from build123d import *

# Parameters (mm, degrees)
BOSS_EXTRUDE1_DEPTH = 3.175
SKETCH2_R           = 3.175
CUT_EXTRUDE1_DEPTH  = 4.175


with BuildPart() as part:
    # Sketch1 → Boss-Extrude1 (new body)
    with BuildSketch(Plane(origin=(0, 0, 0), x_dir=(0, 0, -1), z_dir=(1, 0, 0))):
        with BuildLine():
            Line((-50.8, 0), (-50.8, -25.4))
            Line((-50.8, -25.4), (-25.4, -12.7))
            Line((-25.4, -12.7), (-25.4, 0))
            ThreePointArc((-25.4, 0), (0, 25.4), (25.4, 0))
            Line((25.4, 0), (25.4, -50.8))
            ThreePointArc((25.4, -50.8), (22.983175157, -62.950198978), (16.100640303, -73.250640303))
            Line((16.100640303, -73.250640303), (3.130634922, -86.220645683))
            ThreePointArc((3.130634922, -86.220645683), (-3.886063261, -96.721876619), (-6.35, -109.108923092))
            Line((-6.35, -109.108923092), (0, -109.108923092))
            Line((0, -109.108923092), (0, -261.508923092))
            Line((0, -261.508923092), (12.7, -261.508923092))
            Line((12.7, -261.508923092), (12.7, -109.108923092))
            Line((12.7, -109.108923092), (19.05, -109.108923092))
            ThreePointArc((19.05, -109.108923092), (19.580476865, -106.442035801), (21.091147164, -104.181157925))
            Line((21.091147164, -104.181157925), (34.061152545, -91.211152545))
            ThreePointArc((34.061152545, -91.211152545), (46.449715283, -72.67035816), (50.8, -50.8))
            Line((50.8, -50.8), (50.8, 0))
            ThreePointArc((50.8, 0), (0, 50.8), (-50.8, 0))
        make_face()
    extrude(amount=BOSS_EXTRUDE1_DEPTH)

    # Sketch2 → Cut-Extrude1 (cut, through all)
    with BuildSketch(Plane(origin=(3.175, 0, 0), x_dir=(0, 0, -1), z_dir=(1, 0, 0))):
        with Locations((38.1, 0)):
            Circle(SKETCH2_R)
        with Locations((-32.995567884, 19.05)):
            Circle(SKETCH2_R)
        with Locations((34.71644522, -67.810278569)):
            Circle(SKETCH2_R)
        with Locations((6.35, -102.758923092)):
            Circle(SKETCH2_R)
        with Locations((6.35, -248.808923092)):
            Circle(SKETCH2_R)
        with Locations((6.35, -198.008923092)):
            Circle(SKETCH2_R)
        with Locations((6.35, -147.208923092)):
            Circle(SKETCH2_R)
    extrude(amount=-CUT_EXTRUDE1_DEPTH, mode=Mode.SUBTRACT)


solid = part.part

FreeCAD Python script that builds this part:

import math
import FreeCAD as App
import Part
import Sketcher
from FreeCAD import Vector
Q = App.Units.Quantity

doc = App.newDocument("Part")
params = doc.addObject("Spreadsheet::Sheet", "Params")
for row, (alias, value) in enumerate([
    ("sketch1_radius", "1 in"),
    ("sketch1_radius2", "2 in"),
    ("sketch1_width", "1 in"),
    ("sketch1_width2", "2 in"),
    ("sketch1_width3", "6 in"),
    ("pad1_length", "0.125 in"),
    ("sketch2_diameter", "0.25 in"),
], start=1):
    params.set(f"A{row}", alias)
    params.set(f"B{row}", "=" + value)
    params.setAlias(f"B{row}", alias)

body = doc.addObject("PartDesign::Body", "Body")

# Sketch on YZ plane
sketch1 = body.newObject("Sketcher::SketchObject", "Sketch")
sketch1.AttachmentSupport = (doc.getObject("YZ_Plane"), [""])
sketch1.MapMode = "FlatFace"
sketch1.addGeometry(Part.LineSegment(Vector(0, 51, 0), Vector(-25, 51, 0)), False)
sketch1.addGeometry(Part.LineSegment(Vector(-25, 51, 0), Vector(-13, 25, 0)), False)
sketch1.addGeometry(Part.LineSegment(Vector(-13, 25, 0), Vector(0, 25, 0)), False)
sketch1.addGeometry(Part.ArcOfCircle(Part.Circle(Vector(0, 0, 0), Vector(0, 0, 1), 25), math.radians(-90), math.radians(90)), False)
sketch1.addGeometry(Part.LineSegment(Vector(0, -25, 0), Vector(-51, -25, 0)), False)
sketch1.addGeometry(Part.ArcOfCircle(Part.Circle(Vector(-51, 6, 0), Vector(0, 0, 1), 32), math.radians(-135), math.radians(-90)), False)
sketch1.addGeometry(Part.LineSegment(Vector(-73, -16, 0), Vector(-86, -3, 0)), False)
sketch1.addGeometry(Part.ArcOfCircle(Part.Circle(Vector(-109, -26, 0), Vector(0, 0, 1), 32), math.radians(45), math.radians(90)), False)
sketch1.addGeometry(Part.LineSegment(Vector(-109, 6, 0), Vector(-109, 0, 0)), False)
sketch1.addGeometry(Part.LineSegment(Vector(-109, 0, 0), Vector(-262, 0, 0)), False)
sketch1.addGeometry(Part.LineSegment(Vector(-262, 0, 0), Vector(-262, -13, 0)), False)
sketch1.addGeometry(Part.LineSegment(Vector(-262, -13, 0), Vector(-109, -13, 0)), False)
sketch1.addGeometry(Part.LineSegment(Vector(-109, -13, 0), Vector(-109, -19, 0)), False)
sketch1.addGeometry(Part.ArcOfCircle(Part.Circle(Vector(-109, -26, 0), Vector(0, 0, 1), 7), math.radians(45), math.radians(90)), False)
sketch1.addGeometry(Part.LineSegment(Vector(-104, -21, 0), Vector(-91, -34, 0)), False)
sketch1.addGeometry(Part.ArcOfCircle(Part.Circle(Vector(-51, 6, 0), Vector(0, 0, 1), 57), math.radians(-135), math.radians(-90)), False)
sketch1.addGeometry(Part.LineSegment(Vector(-51, -51, 0), Vector(0, -51, 0)), False)
sketch1.addGeometry(Part.ArcOfCircle(Part.Circle(Vector(0, 0, 0), Vector(0, 0, 1), 51), math.radians(-90), math.radians(90)), False)
sketch1.addConstraint(Sketcher.Constraint("Coincident", 0, 2, 1, 1))
sketch1.addConstraint(Sketcher.Constraint("Coincident", 1, 2, 2, 1))
sketch1.addConstraint(Sketcher.Constraint("Tangent", 2, 2, 3, 2))
sketch1.addConstraint(Sketcher.Constraint("Tangent", 3, 1, 4, 1))
sketch1.addConstraint(Sketcher.Constraint("Tangent", 4, 2, 5, 2))
sketch1.addConstraint(Sketcher.Constraint("Tangent", 5, 1, 6, 1))
sketch1.addConstraint(Sketcher.Constraint("Tangent", 6, 2, 7, 1))
sketch1.addConstraint(Sketcher.Constraint("Coincident", 7, 2, 8, 1))
sketch1.addConstraint(Sketcher.Constraint("Coincident", 8, 2, 9, 1))
sketch1.addConstraint(Sketcher.Constraint("Coincident", 9, 2, 10, 1))
sketch1.addConstraint(Sketcher.Constraint("Coincident", 10, 2, 11, 1))
sketch1.addConstraint(Sketcher.Constraint("Coincident", 11, 2, 12, 1))
sketch1.addConstraint(Sketcher.Constraint("Coincident", 12, 2, 13, 2))
sketch1.addConstraint(Sketcher.Constraint("Tangent", 13, 1, 14, 1))
sketch1.addConstraint(Sketcher.Constraint("Tangent", 14, 2, 15, 1))
sketch1.addConstraint(Sketcher.Constraint("Tangent", 15, 2, 16, 1))
sketch1.addConstraint(Sketcher.Constraint("Tangent", 16, 2, 17, 1))
sketch1.addConstraint(Sketcher.Constraint("Tangent", 17, 2, 0, 1))
sketch1.addConstraint(Sketcher.Constraint("Horizontal", 0))
sketch1.addConstraint(Sketcher.Constraint("Horizontal", 2))
sketch1.addConstraint(Sketcher.Constraint("Horizontal", 4))
sketch1.addConstraint(Sketcher.Constraint("Vertical", 8))
sketch1.addConstraint(Sketcher.Constraint("Horizontal", 9))
sketch1.addConstraint(Sketcher.Constraint("Vertical", 10))
sketch1.addConstraint(Sketcher.Constraint("Horizontal", 11))
sketch1.addConstraint(Sketcher.Constraint("Vertical", 12))
sketch1.addConstraint(Sketcher.Constraint("Horizontal", 16))
sketch1.addConstraint(Sketcher.Constraint("Coincident", 3, 3, -1, 1))
sketch1.addConstraint(Sketcher.Constraint("Coincident", 17, 3, -1, 1))
sketch1.addConstraint(Sketcher.Constraint("Coincident", 13, 3, 7, 3))
sketch1.addConstraint(Sketcher.Constraint("Coincident", 15, 3, 5, 3))
sketch1.addConstraint(Sketcher.Constraint("PointOnObject", 8, 2, -1))
sketch1.addConstraint(Sketcher.Constraint("Parallel", 6, 14))
sketch1.addConstraint(Sketcher.Constraint("Horizontal", 15, 3, 7, 2))
sketch1.addConstraint(Sketcher.Constraint("Vertical", 13, 3, 7, 2))
sketch1.addConstraint(Sketcher.Constraint("Vertical", 8, 2, 11, 2))
sketch1.addConstraint(Sketcher.Constraint("Equal", 2, 10))
sketch1.addConstraint(Sketcher.Constraint("Equal", 8, 12))
sketch1.addConstraint(Sketcher.Constraint("Radius", 3, Q("1 in")))
sketch1.addConstraint(Sketcher.Constraint("Radius", 17, Q("2 in")))
sketch1.addConstraint(Sketcher.Constraint("DistanceX", 0, 2, 0, 1, Q("1 in")))
sketch1.addConstraint(Sketcher.Constraint("DistanceX", 4, 2, 4, 1, Q("2 in")))
sketch1.addConstraint(Sketcher.Constraint("DistanceX", 9, 2, 9, 1, Q("6 in")))
sketch1.addConstraint(Sketcher.Constraint("Radius", 5, Q("1.25 in")))
sketch1.addConstraint(Sketcher.Constraint("Angle", 6, Q("135 deg")))
sketch1.addConstraint(Sketcher.Constraint("Radius", 7, Q("32.368912 mm")))
sketch1.setExpression("Constraints[38]", "Params.sketch1_radius")
sketch1.setExpression("Constraints[39]", "Params.sketch1_radius2")
sketch1.setExpression("Constraints[40]", "Params.sketch1_width")
sketch1.setExpression("Constraints[41]", "Params.sketch1_width2")
sketch1.setExpression("Constraints[42]", "Params.sketch1_width3")
pad1 = body.newObject("PartDesign::Pad", "Pad")
pad1.Profile = sketch1
pad1.setExpression("Length", "Params.pad1_length")

# Sketch on YZ plane
sketch2 = body.newObject("Sketcher::SketchObject", "Sketch001")
sketch2.AttachmentSupport = (doc.getObject("YZ_Plane"), [""])
sketch2.MapMode = "FlatFace"
sketch2.AttachmentOffset = App.Placement(Vector(0, 0, 0.125 * 25.4), App.Rotation())
sketch2.addGeometry(Part.Circle(Vector(0, -38.1, 0), Vector(0, 0, 1), 3.2), False)
sketch2.addGeometry(Part.Circle(Vector(19.1, 33, 0), Vector(0, 0, 1), 3.2), False)
sketch2.addGeometry(Part.Circle(Vector(-67.8, -34.7, 0), Vector(0, 0, 1), 3.2), False)
sketch2.addGeometry(Part.Circle(Vector(-102.8, -6.3, 0), Vector(0, 0, 1), 3.2), False)
sketch2.addGeometry(Part.Circle(Vector(-248.8, -6.3, 0), Vector(0, 0, 1), 3.2), False)
sketch2.addGeometry(Part.Circle(Vector(-198, -6.3, 0), Vector(0, 0, 1), 3.2), False)
sketch2.addGeometry(Part.Circle(Vector(-147.2, -6.3, 0), Vector(0, 0, 1), 3.2), False)
sketch2.addConstraint(Sketcher.Constraint("Equal", 0, 1))
sketch2.addConstraint(Sketcher.Constraint("Equal", 1, 2))
sketch2.addConstraint(Sketcher.Constraint("Equal", 2, 3))
sketch2.addConstraint(Sketcher.Constraint("Equal", 3, 4))
sketch2.addConstraint(Sketcher.Constraint("Equal", 4, 5))
sketch2.addConstraint(Sketcher.Constraint("Equal", 5, 6))
sketch2.addConstraint(Sketcher.Constraint("PointOnObject", 0, 3, -2))
sketch2.addConstraint(Sketcher.Constraint("Horizontal", 3, 3, 4, 3))
sketch2.addConstraint(Sketcher.Constraint("Horizontal", 4, 3, 5, 3))
sketch2.addConstraint(Sketcher.Constraint("Horizontal", 5, 3, 6, 3))
sketch2.addConstraint(Sketcher.Constraint("Diameter", 0, Q("0.25 in")))
sketch2.addConstraint(Sketcher.Constraint("DistanceX", 4, 3, 5, 3, Q("2 in")))
sketch2.addConstraint(Sketcher.Constraint("DistanceX", 5, 3, 6, 3, Q("2 in")))
sketch2.addConstraint(Sketcher.Constraint("DistanceY", 0, 3, -1, 1, Q("1.5 in")))
sketch2.addConstraint(Sketcher.Constraint("DistanceX", -1, 1, 1, 3, Q("0.75 in")))
sketch2.addConstraint(Sketcher.Constraint("DistanceY", 3, 3, -1, 1, Q("0.25 in")))
sketch2.addConstraint(Sketcher.Constraint("DistanceX", 4, 3, 3, 3, Q("5.75 in")))
sketch2.addConstraint(Sketcher.Constraint("DistanceX", 2, 3, -1, 1, Q("67.810279 mm")))
sketch2.addConstraint(Sketcher.Constraint("DistanceY", -1, 1, 1, 3, Q("32.995568 mm")))
sketch2.addConstraint(Sketcher.Constraint("DistanceY", 2, 3, -1, 1, Q("34.716445 mm")))
sketch2.addConstraint(Sketcher.Constraint("DistanceX", 3, 3, -1, 1, Q("102.758923 mm")))
sketch2.setExpression("Constraints[10]", "Params.sketch2_diameter")
pocket1 = body.newObject("PartDesign::Pocket", "Pocket")
pocket1.Profile = sketch2
pocket1.Type = "ThroughAll"

doc.recompute()
